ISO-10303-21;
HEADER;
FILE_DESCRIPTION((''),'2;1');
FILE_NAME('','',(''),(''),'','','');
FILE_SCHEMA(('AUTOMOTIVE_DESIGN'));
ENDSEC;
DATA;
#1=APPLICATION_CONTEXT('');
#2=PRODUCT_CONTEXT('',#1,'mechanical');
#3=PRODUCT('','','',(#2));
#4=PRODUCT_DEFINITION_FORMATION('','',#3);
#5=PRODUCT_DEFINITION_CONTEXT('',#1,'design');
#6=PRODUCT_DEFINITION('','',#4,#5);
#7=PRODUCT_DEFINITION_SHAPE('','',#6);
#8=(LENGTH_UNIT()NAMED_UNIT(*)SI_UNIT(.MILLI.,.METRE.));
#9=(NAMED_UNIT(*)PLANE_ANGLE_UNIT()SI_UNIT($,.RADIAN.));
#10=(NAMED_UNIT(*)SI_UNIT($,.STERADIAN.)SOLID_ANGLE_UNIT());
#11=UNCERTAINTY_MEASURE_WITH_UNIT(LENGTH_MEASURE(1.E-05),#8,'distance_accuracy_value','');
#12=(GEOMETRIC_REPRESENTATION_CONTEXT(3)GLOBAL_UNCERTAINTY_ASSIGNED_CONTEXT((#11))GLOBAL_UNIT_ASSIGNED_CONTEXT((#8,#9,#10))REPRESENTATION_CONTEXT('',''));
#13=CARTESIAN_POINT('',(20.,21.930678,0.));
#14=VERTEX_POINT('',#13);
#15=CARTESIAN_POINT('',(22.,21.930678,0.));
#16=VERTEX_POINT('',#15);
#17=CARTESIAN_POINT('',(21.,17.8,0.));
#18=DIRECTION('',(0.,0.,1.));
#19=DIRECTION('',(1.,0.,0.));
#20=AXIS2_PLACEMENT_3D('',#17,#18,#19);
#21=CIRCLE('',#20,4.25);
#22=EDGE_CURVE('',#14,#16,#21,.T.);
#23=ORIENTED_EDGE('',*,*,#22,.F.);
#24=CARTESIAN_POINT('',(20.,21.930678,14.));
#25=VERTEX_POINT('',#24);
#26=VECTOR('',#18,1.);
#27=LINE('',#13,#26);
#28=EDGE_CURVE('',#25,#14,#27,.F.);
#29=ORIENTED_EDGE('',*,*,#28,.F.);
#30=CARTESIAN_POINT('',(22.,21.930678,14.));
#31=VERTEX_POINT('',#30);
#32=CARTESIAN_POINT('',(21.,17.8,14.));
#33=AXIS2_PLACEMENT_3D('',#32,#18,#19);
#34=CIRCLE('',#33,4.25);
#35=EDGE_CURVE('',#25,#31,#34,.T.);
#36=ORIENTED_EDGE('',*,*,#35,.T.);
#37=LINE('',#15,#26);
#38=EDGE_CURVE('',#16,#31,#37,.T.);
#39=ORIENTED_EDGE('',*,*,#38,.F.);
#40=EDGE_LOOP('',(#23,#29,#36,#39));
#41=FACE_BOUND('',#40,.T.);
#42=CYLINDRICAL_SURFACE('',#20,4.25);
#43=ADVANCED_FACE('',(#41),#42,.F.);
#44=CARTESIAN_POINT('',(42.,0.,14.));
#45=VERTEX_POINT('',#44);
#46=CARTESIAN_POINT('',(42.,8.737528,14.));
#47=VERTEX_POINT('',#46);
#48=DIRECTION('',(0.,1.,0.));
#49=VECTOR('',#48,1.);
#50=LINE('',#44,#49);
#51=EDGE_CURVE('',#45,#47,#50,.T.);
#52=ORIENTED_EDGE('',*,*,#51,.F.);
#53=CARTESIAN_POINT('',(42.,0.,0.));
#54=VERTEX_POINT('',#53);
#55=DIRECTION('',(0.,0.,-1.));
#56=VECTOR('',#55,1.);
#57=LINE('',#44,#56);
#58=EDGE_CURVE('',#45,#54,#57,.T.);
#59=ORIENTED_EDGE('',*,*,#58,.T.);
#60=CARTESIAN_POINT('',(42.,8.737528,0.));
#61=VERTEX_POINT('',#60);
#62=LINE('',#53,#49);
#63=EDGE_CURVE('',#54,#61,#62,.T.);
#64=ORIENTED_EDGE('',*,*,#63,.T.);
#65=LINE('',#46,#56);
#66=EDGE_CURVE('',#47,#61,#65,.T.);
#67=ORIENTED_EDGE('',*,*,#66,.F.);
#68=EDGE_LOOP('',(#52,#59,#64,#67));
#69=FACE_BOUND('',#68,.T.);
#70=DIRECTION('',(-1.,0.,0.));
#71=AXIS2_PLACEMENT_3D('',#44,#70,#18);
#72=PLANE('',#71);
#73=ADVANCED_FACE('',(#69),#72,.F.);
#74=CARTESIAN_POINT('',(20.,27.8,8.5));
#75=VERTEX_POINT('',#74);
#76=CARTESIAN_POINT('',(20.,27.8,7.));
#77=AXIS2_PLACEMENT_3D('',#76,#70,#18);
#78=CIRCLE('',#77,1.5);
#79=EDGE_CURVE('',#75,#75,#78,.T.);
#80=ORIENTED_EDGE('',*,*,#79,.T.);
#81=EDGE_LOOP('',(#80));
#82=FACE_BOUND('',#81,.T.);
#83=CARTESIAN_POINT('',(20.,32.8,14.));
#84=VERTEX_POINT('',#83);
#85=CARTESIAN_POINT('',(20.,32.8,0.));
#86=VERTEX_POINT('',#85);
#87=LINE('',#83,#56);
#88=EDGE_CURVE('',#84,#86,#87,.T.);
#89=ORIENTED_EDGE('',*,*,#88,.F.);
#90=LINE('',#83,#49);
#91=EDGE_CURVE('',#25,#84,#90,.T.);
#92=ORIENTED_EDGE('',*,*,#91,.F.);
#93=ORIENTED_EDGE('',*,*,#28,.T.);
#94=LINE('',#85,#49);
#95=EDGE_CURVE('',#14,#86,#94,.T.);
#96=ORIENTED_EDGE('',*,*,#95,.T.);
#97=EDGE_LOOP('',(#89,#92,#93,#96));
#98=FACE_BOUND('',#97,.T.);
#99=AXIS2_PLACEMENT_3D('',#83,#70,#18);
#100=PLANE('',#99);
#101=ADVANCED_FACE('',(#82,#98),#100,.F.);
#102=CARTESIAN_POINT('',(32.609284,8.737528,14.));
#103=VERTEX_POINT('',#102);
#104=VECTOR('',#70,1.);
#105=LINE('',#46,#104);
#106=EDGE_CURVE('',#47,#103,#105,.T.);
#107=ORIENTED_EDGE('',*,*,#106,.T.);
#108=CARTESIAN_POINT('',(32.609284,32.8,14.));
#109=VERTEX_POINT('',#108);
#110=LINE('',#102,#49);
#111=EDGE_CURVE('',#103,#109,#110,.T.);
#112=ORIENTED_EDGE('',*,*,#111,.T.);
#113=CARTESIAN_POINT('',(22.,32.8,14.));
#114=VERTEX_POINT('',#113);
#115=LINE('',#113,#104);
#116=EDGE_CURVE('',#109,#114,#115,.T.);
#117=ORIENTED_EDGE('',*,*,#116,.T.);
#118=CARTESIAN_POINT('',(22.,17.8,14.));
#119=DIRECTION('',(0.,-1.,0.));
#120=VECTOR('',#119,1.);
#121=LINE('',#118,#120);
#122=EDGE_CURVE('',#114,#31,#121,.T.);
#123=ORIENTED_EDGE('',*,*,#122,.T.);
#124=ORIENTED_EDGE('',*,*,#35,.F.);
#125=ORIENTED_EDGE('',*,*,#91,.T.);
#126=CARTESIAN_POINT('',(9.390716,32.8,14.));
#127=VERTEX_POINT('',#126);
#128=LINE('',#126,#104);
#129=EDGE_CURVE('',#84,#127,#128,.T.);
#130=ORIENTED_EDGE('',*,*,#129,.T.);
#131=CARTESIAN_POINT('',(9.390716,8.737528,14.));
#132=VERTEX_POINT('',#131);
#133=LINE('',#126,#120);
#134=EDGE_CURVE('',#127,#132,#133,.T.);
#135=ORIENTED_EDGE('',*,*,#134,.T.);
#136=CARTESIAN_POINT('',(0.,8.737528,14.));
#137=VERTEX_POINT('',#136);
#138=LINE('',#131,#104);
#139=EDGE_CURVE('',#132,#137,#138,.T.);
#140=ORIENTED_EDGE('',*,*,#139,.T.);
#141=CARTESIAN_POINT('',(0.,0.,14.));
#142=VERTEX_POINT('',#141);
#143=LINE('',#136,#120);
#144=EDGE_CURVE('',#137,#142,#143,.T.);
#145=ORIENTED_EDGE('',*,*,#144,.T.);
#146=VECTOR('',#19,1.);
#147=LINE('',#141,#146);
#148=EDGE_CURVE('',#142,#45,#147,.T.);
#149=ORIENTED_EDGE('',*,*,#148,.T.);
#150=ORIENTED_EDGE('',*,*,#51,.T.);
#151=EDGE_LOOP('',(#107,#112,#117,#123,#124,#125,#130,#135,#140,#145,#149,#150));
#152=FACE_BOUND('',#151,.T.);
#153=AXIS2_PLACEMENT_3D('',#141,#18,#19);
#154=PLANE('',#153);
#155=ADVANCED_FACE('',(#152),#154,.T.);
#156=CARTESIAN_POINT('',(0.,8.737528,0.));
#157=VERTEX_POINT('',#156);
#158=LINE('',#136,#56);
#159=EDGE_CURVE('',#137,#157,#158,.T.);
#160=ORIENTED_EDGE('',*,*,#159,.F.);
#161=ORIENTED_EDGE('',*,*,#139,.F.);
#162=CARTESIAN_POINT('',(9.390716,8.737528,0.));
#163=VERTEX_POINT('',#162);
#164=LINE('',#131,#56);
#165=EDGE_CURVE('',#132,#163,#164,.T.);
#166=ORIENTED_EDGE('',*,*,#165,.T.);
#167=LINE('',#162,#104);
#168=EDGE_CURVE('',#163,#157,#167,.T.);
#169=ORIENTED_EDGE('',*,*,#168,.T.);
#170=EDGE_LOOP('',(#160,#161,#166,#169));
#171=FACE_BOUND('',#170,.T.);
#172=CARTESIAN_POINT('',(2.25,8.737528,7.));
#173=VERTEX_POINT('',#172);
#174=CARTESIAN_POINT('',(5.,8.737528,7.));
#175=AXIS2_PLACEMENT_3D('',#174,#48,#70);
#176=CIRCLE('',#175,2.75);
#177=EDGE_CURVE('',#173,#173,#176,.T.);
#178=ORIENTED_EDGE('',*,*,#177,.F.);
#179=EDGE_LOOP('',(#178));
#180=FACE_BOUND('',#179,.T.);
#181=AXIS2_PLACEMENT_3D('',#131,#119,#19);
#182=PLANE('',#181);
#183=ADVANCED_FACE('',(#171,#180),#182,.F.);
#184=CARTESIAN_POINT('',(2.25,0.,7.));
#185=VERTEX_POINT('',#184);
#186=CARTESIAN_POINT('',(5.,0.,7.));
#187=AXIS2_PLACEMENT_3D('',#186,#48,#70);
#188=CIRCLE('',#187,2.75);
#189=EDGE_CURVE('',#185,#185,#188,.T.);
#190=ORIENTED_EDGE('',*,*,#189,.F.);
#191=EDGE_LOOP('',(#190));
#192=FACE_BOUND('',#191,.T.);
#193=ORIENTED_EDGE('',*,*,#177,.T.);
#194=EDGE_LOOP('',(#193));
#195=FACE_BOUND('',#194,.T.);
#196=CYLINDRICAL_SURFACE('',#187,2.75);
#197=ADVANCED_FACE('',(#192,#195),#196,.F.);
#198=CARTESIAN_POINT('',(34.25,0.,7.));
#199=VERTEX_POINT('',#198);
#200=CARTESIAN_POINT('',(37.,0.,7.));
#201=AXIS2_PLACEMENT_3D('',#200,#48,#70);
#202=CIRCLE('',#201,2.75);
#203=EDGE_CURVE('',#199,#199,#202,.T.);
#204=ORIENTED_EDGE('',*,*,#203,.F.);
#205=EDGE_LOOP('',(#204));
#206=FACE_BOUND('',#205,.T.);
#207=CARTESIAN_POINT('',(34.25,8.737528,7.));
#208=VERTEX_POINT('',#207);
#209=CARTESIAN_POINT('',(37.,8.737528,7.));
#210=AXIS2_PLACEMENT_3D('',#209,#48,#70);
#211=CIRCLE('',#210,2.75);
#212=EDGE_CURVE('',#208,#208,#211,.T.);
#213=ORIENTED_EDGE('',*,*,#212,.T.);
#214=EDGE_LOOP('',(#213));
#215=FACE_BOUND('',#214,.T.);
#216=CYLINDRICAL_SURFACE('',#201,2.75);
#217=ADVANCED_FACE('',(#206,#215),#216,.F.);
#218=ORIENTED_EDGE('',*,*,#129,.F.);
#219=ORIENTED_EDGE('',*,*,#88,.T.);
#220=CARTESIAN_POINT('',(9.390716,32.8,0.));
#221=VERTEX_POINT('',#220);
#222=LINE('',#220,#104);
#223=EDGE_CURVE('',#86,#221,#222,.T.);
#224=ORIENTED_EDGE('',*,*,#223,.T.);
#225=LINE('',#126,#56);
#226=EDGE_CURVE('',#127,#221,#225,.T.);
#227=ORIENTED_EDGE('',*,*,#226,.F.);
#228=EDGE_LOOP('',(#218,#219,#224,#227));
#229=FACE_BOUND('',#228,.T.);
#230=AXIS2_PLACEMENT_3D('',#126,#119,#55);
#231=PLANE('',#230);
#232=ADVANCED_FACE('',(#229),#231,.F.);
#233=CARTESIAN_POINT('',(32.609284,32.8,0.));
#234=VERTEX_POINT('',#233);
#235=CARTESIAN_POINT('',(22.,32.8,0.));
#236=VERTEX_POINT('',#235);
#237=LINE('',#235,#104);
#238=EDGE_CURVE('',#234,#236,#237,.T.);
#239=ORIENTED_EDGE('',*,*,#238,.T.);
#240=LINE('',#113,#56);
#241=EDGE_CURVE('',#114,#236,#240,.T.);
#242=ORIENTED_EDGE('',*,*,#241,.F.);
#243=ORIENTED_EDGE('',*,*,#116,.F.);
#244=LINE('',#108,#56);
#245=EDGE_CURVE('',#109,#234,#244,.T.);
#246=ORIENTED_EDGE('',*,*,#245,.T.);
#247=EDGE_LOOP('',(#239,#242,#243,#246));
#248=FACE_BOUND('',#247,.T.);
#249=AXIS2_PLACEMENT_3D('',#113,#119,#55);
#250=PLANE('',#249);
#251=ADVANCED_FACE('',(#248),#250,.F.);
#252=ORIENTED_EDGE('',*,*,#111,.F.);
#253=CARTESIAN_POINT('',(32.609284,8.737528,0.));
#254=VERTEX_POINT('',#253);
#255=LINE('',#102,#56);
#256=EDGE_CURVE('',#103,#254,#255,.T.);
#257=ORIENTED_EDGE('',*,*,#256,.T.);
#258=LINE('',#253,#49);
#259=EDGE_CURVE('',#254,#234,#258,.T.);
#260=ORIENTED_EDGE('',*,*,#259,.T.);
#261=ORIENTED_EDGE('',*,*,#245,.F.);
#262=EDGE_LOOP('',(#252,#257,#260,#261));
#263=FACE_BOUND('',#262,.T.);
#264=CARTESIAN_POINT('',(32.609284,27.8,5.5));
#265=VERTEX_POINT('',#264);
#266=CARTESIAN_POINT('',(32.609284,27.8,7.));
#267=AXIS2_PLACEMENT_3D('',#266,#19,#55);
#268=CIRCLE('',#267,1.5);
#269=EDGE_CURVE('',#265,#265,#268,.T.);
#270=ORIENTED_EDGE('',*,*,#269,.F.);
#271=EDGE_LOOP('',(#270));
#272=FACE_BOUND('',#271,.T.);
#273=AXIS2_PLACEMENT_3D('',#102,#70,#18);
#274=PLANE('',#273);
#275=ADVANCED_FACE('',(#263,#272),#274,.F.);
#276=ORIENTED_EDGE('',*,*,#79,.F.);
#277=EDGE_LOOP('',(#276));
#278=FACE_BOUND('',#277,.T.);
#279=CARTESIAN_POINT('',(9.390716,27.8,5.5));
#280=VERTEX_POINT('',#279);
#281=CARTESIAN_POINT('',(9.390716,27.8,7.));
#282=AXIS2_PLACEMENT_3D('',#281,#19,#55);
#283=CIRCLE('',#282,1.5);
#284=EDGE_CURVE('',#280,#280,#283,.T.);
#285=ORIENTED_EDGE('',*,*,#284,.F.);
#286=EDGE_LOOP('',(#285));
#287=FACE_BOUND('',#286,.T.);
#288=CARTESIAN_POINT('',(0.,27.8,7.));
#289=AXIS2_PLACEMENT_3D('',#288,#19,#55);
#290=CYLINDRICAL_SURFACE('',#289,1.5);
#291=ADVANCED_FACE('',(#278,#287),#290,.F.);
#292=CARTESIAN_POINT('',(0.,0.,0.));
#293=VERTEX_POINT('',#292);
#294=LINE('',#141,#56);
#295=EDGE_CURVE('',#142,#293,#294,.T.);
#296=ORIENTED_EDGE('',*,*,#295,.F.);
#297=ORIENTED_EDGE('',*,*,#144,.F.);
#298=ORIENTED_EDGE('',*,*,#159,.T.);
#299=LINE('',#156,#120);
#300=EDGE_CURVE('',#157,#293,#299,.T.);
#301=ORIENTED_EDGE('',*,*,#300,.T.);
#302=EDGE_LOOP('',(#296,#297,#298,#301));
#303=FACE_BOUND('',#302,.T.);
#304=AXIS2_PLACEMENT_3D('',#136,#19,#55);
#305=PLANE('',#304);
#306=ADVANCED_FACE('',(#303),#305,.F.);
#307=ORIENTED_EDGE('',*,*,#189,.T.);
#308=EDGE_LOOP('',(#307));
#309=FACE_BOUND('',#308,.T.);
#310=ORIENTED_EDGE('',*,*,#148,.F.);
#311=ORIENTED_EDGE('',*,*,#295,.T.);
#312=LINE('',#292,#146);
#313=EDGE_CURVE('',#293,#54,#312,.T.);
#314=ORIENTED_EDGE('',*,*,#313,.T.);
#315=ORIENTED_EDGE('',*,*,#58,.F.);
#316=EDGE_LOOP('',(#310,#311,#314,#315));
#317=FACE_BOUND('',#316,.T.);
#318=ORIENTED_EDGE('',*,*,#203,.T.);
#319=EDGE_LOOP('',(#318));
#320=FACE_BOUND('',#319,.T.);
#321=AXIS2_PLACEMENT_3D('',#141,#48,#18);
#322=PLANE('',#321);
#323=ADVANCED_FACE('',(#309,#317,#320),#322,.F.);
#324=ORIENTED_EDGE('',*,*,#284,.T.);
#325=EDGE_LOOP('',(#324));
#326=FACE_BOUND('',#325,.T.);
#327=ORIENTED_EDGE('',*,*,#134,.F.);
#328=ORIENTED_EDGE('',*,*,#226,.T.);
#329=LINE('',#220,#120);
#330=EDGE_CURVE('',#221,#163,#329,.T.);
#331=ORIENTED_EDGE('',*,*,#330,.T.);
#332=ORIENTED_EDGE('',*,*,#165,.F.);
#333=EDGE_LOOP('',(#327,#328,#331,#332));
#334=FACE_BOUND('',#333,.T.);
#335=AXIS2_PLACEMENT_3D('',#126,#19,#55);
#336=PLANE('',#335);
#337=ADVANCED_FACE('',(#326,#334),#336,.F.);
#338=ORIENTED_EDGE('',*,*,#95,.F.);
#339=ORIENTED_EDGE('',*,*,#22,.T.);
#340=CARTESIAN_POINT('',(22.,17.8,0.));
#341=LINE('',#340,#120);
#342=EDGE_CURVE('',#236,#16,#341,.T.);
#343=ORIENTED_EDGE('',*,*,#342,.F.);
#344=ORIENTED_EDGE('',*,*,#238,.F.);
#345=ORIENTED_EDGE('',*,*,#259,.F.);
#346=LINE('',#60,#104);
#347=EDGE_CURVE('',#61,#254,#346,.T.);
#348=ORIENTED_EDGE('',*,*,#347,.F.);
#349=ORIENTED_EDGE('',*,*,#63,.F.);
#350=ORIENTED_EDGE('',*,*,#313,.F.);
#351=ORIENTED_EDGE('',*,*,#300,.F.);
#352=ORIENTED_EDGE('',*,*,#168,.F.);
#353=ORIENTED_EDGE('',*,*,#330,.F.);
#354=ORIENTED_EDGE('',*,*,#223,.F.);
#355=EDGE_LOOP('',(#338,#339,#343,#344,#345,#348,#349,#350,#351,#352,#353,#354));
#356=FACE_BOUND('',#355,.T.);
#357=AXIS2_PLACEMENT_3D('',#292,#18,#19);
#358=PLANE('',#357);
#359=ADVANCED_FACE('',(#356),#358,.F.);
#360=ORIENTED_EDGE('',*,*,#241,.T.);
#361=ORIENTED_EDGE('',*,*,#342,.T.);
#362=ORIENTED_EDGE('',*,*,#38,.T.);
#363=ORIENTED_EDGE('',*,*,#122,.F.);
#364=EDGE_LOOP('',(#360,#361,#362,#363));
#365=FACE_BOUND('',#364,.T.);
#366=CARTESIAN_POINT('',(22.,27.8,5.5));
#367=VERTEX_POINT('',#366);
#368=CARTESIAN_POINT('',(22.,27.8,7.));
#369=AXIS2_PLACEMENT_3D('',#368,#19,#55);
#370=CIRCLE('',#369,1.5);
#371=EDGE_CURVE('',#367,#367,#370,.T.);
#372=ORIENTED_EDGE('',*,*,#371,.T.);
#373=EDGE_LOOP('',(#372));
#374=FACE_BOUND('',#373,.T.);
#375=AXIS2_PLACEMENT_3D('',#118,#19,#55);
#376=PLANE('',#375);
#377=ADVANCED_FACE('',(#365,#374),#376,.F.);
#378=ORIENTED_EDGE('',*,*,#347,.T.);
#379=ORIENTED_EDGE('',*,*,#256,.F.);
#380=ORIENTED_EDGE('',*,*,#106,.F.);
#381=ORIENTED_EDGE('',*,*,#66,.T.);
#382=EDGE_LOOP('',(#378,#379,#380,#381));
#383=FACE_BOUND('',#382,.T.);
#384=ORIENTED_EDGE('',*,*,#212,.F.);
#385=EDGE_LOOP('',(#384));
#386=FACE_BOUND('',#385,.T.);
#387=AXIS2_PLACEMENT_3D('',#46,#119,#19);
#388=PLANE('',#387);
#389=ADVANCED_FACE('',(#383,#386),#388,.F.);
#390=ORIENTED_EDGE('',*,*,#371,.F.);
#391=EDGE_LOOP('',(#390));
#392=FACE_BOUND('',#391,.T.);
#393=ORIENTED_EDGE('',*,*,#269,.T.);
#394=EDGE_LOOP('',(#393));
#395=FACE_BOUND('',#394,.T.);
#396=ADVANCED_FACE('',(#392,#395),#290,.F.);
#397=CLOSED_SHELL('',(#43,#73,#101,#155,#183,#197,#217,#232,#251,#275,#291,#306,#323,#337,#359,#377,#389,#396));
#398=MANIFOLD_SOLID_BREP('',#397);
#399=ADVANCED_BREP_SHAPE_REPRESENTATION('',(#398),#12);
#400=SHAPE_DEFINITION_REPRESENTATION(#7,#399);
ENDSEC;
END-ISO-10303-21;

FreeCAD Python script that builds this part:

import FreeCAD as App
import Part
import Sketcher
from FreeCAD import Vector
Q = App.Units.Quantity

doc = App.newDocument("Part")
body = doc.addObject("PartDesign::Body", "Body")

# Sketch on XY plane
sketch1 = doc.addObject("Sketcher::SketchObject", "Sketch")
body.addObject(sketch1)
sketch1.AttachmentSupport = (doc.XY_Plane, [""])
sketch1.MapMode = "FlatFace"
sketch1.addGeometry([
    Part.LineSegment(Vector(0, 0, 0), Vector(42, 0, 0)),  # 0
    Part.LineSegment(Vector(42, 0, 0), Vector(42, 8.7, 0)),  # 1
    Part.LineSegment(Vector(42, 8.7, 0), Vector(32.6, 8.7, 0)),  # 2
    Part.LineSegment(Vector(32.6, 8.7, 0), Vector(32.6, 32.8, 0)),  # 3
    Part.LineSegment(Vector(32.6, 32.8, 0), Vector(22, 32.8, 0)),  # 4
    Part.LineSegment(Vector(22, 32.8, 0), Vector(22, 17.8, 0)),  # 5
    Part.LineSegment(Vector(22, 17.8, 0), Vector(20, 17.8, 0)),  # 6
    Part.LineSegment(Vector(20, 17.8, 0), Vector(20, 32.8, 0)),  # 7
    Part.LineSegment(Vector(20, 32.8, 0), Vector(9.4, 32.8, 0)),  # 8
    Part.LineSegment(Vector(9.4, 32.8, 0), Vector(9.4, 8.7, 0)),  # 9
    Part.LineSegment(Vector(9.4, 8.7, 0), Vector(0, 8.7, 0)),  # 10
    Part.LineSegment(Vector(0, 8.7, 0), Vector(0, 0, 0)),  # 11
], False)
sketch1.addConstraint([
    Sketcher.Constraint("Coincident", 0, 2, 1, 1),
    Sketcher.Constraint("Coincident", 1, 2, 2, 1),
    Sketcher.Constraint("Coincident", 2, 2, 3, 1),
    Sketcher.Constraint("Coincident", 3, 2, 4, 1),
    Sketcher.Constraint("Coincident", 4, 2, 5, 1),
    Sketcher.Constraint("Coincident", 5, 2, 6, 1),
    Sketcher.Constraint("Coincident", 6, 2, 7, 1),
    Sketcher.Constraint("Coincident", 7, 2, 8, 1),
    Sketcher.Constraint("Coincident", 8, 2, 9, 1),
    Sketcher.Constraint("Coincident", 9, 2, 10, 1),
    Sketcher.Constraint("Coincident", 10, 2, 11, 1),
    Sketcher.Constraint("Coincident", 11, 2, 0, 1),
    Sketcher.Constraint("Horizontal", 0),
    Sketcher.Constraint("Vertical", 1),
    Sketcher.Constraint("Horizontal", 2),
    Sketcher.Constraint("Vertical", 3),
    Sketcher.Constraint("Horizontal", 4),
    Sketcher.Constraint("Vertical", 5),
    Sketcher.Constraint("Horizontal", 6),
    Sketcher.Constraint("Vertical", 7),
    Sketcher.Constraint("Horizontal", 8),
    Sketcher.Constraint("Vertical", 9),
    Sketcher.Constraint("Horizontal", 10),
    Sketcher.Constraint("Vertical", 11),
    Sketcher.Constraint("Coincident", 11, 2, -1, 1),
    Sketcher.Constraint("Horizontal", 4, 2, 7, 2),
    Sketcher.Constraint("Horizontal", 2, 2, 9, 2),
    Sketcher.Constraint("Equal", 4, 8),
    Sketcher.Constraint("Equal", 2, 10),
    Sketcher.Constraint("DistanceX", 0, 1, 0, 2, Q("42 mm")),
    Sketcher.Constraint("DistanceX", 6, 2, 6, 1, Q("2 mm")),
    Sketcher.Constraint("DistanceY", 5, 2, 5, 1, Q("15 mm")),
    Sketcher.Constraint("DistanceY", -1, 1, 3, 2, Q("32.8 mm")),
    Sketcher.Constraint("DistanceX", 2, 2, 2, 1, Q("9.390716 mm")),
    Sketcher.Constraint("DistanceY", 1, 1, 1, 2, Q("8.737528 mm")),
])
pad1 = doc.addObject("PartDesign::Pad", "Pad")
body.addObject(pad1)
pad1.Profile = sketch1
pad1.Length = 14

# Sketch on XY plane
sketch2 = doc.addObject("Sketcher::SketchObject", "Sketch001")
body.addObject(sketch2)
sketch2.AttachmentSupport = (doc.XY_Plane, [""])
sketch2.MapMode = "FlatFace"
sketch2.AttachmentOffset = App.Placement(Vector(0, 0, 14), App.Rotation())
sketch2.addGeometry(Part.Circle(Vector(21, 17.8, 0), Vector(0, 0, 1), 4.2), False)
sketch2.addConstraint([
    Sketcher.Constraint("Diameter", 0, Q("8.5 mm")),
    Sketcher.Constraint("DistanceX", -1, 1, 0, 3, Q("21 mm")),
    Sketcher.Constraint("DistanceY", -1, 1, 0, 3, Q("17.8 mm")),
])
pocket1 = doc.addObject("PartDesign::Pocket", "Pocket")
body.addObject(pocket1)
pocket1.Profile = sketch2
pocket1.Type = "ThroughAll"

# Sketch on XZ plane
sketch3 = doc.addObject("Sketcher::SketchObject", "Sketch002")
body.addObject(sketch3)
sketch3.AttachmentSupport = (doc.XZ_Plane, [""])
sketch3.MapMode = "FlatFace"
sketch3.AttachmentOffset = App.Placement(Vector(0, 0, -8.737528), App.Rotation())
sketch3.addGeometry([
    Part.Circle(Vector(5, 7, 0), Vector(0, 0, 1), 2.8),
    Part.Circle(Vector(37, 7, 0), Vector(0, 0, 1), 2.8),
], False)
sketch3.addConstraint([
    Sketcher.Constraint("Equal", 0, 1),
    Sketcher.Constraint("Horizontal", 0, 3, 1, 3),
    Sketcher.Constraint("Diameter", 0, Q("5.5 mm")),
    Sketcher.Constraint("DistanceX", -1, 1, 0, 3, Q("5 mm")),
    Sketcher.Constraint("DistanceY", -1, 1, 0, 3, Q("7 mm")),
    Sketcher.Constraint("DistanceX", -1, 1, 1, 3, Q("37 mm")),
])
pocket2 = doc.addObject("PartDesign::Pocket", "Pocket001")
body.addObject(pocket2)
pocket2.Profile = sketch3
pocket2.Type = "ThroughAll"
pocket2.Reversed = True

# Sketch on YZ plane
sketch4 = doc.addObject("Sketcher::SketchObject", "Sketch003")
body.addObject(sketch4)
sketch4.AttachmentSupport = (doc.YZ_Plane, [""])
sketch4.MapMode = "FlatFace"
sketch4.AttachmentOffset = App.Placement(Vector(0, 0, 32.609284), App.Rotation())
sketch4.addGeometry(Part.Circle(Vector(27.8, 7, 0), Vector(0, 0, 1), 1.5), False)
sketch4.addConstraint([
    Sketcher.Constraint("Diameter", 0, Q("3 mm")),
    Sketcher.Constraint("DistanceY", -1, 1, 0, 3, Q("7 mm")),
    Sketcher.Constraint("DistanceX", -1, 1, 0, 3, Q("27.8 mm")),
])
pocket3 = doc.addObject("PartDesign::Pocket", "Pocket002")
body.addObject(pocket3)
pocket3.Profile = sketch4
pocket3.Type = "ThroughAll"

doc.recompute()
